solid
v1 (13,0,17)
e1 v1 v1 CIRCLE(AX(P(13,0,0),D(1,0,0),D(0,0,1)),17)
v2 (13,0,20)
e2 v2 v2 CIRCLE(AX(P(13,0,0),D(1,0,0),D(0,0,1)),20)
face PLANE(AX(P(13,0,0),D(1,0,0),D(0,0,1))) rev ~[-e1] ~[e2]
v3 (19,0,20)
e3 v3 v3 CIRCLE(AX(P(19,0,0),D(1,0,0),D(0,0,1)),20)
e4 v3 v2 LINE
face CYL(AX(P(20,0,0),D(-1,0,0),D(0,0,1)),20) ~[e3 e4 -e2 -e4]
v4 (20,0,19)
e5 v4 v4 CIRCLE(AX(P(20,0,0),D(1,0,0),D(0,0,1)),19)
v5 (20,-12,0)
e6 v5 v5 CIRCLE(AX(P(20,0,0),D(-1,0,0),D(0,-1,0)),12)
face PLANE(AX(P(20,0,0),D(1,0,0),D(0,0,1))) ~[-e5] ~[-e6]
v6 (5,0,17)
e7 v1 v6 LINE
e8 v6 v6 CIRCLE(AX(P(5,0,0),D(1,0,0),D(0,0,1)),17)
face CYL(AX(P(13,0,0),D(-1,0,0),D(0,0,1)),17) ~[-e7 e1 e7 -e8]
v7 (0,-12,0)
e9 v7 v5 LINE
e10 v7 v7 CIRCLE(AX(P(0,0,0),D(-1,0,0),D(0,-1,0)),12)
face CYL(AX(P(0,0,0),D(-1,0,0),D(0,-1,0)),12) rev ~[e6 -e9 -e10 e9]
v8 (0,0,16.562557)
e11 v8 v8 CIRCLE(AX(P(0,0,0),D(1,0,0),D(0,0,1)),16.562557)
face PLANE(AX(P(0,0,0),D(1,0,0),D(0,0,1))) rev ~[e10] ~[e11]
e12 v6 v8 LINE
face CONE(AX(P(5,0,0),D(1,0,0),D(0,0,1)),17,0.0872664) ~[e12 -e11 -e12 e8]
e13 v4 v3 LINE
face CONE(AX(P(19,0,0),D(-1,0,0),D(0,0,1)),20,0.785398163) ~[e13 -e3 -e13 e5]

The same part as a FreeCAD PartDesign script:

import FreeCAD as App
import Part
import Sketcher
from FreeCAD import Vector


def edges_at(feature, points):
    """Names of the edges that pass closest to the given points."""
    edges = feature.Shape.Edges
    near = lambda p: min(range(len(edges)), key=lambda i: edges[i].distToShape(Part.Vertex(*p))[0])
    return sorted({f"Edge{near(p) + 1}" for p in points})


def add_polygon(sketch, points):
    """Adds a closed chain of lines whose ends are joined by coincident constraints."""
    first, n = sketch.GeometryCount, len(points)
    for a, b in zip(points, points[1:] + points[:1]):
        sketch.addGeometry(Part.LineSegment(App.Vector(*a, 0), App.Vector(*b, 0)), False)
    for i in range(n):
        sketch.addConstraint(Sketcher.Constraint("Coincident", first + i, 2, first + (i + 1) % n, 1))

doc = App.newDocument("Part")
body = doc.addObject("PartDesign::Body", "Body")

# Sketch on XZ plane
sketch1 = body.newObject("Sketcher::SketchObject", "Sketch")
sketch1.AttachmentSupport = (doc.getObject("XZ_Plane"), [""])
sketch1.MapMode = "FlatFace"
add_polygon(sketch1, [(0, 17), (0, 0), (20, 0), (20, 20), (13, 20), (13, 17)])  # lines 0-5
sketch1.addConstraint([
    Sketcher.Constraint("Vertical", 0),
    Sketcher.Constraint("Horizontal", 1),
    Sketcher.Constraint("Vertical", 2),
    Sketcher.Constraint("Horizontal", 3),
    Sketcher.Constraint("Vertical", 4),
    Sketcher.Constraint("Horizontal", 5),
    Sketcher.Constraint("Coincident", 0, 2, -1, 1),
    Sketcher.Constraint("Equal", 1, 2),
    Sketcher.Constraint("DistanceX", 1, 1, 1, 2, 20.0),
    Sketcher.Constraint("DistanceX", 3, 2, 3, 1, 7.0),
    Sketcher.Constraint("DistanceY", 0, 2, 0, 1, 17.0),
])
revolution = body.newObject("PartDesign::Revolution", "Revolution")
revolution.Profile = sketch1
revolution.ReferenceAxis = (sketch1, ["H_Axis"])
revolution.Angle = 360
doc.recompute()

chamfer = body.newObject("PartDesign::Chamfer", "Chamfer")
chamfer.Base = (revolution, edges_at(revolution, [(20, 0, -20)]))
chamfer.Size = 1
doc.recompute()

chamfer2 = body.newObject("PartDesign::Chamfer", "Chamfer001")
chamfer2.Base = (chamfer, edges_at(chamfer, [(0, 0, -17)]))
chamfer2.ChamferType = "Two distances"
chamfer2.Size = 5
chamfer2.Size2 = 0.437443

# Sketch on YZ plane
sketch2 = body.newObject("Sketcher::SketchObject", "Sketch001")
sketch2.AttachmentSupport = (doc.getObject("YZ_Plane"), [""])
sketch2.MapMode = "FlatFace"
sketch2.addGeometry(Part.Circle(Vector(0, 0, 0), Vector(0, 0, 1), 12), False)
sketch2.addConstraint([
    Sketcher.Constraint("Coincident", 0, 3, -1, 1),
    Sketcher.Constraint("Diameter", 0, 24.0),
])
pocket1 = body.newObject("PartDesign::Pocket", "Pocket")
pocket1.Profile = sketch2
pocket1.Length = 69.3
pocket1.Reversed = True

doc.recompute()
